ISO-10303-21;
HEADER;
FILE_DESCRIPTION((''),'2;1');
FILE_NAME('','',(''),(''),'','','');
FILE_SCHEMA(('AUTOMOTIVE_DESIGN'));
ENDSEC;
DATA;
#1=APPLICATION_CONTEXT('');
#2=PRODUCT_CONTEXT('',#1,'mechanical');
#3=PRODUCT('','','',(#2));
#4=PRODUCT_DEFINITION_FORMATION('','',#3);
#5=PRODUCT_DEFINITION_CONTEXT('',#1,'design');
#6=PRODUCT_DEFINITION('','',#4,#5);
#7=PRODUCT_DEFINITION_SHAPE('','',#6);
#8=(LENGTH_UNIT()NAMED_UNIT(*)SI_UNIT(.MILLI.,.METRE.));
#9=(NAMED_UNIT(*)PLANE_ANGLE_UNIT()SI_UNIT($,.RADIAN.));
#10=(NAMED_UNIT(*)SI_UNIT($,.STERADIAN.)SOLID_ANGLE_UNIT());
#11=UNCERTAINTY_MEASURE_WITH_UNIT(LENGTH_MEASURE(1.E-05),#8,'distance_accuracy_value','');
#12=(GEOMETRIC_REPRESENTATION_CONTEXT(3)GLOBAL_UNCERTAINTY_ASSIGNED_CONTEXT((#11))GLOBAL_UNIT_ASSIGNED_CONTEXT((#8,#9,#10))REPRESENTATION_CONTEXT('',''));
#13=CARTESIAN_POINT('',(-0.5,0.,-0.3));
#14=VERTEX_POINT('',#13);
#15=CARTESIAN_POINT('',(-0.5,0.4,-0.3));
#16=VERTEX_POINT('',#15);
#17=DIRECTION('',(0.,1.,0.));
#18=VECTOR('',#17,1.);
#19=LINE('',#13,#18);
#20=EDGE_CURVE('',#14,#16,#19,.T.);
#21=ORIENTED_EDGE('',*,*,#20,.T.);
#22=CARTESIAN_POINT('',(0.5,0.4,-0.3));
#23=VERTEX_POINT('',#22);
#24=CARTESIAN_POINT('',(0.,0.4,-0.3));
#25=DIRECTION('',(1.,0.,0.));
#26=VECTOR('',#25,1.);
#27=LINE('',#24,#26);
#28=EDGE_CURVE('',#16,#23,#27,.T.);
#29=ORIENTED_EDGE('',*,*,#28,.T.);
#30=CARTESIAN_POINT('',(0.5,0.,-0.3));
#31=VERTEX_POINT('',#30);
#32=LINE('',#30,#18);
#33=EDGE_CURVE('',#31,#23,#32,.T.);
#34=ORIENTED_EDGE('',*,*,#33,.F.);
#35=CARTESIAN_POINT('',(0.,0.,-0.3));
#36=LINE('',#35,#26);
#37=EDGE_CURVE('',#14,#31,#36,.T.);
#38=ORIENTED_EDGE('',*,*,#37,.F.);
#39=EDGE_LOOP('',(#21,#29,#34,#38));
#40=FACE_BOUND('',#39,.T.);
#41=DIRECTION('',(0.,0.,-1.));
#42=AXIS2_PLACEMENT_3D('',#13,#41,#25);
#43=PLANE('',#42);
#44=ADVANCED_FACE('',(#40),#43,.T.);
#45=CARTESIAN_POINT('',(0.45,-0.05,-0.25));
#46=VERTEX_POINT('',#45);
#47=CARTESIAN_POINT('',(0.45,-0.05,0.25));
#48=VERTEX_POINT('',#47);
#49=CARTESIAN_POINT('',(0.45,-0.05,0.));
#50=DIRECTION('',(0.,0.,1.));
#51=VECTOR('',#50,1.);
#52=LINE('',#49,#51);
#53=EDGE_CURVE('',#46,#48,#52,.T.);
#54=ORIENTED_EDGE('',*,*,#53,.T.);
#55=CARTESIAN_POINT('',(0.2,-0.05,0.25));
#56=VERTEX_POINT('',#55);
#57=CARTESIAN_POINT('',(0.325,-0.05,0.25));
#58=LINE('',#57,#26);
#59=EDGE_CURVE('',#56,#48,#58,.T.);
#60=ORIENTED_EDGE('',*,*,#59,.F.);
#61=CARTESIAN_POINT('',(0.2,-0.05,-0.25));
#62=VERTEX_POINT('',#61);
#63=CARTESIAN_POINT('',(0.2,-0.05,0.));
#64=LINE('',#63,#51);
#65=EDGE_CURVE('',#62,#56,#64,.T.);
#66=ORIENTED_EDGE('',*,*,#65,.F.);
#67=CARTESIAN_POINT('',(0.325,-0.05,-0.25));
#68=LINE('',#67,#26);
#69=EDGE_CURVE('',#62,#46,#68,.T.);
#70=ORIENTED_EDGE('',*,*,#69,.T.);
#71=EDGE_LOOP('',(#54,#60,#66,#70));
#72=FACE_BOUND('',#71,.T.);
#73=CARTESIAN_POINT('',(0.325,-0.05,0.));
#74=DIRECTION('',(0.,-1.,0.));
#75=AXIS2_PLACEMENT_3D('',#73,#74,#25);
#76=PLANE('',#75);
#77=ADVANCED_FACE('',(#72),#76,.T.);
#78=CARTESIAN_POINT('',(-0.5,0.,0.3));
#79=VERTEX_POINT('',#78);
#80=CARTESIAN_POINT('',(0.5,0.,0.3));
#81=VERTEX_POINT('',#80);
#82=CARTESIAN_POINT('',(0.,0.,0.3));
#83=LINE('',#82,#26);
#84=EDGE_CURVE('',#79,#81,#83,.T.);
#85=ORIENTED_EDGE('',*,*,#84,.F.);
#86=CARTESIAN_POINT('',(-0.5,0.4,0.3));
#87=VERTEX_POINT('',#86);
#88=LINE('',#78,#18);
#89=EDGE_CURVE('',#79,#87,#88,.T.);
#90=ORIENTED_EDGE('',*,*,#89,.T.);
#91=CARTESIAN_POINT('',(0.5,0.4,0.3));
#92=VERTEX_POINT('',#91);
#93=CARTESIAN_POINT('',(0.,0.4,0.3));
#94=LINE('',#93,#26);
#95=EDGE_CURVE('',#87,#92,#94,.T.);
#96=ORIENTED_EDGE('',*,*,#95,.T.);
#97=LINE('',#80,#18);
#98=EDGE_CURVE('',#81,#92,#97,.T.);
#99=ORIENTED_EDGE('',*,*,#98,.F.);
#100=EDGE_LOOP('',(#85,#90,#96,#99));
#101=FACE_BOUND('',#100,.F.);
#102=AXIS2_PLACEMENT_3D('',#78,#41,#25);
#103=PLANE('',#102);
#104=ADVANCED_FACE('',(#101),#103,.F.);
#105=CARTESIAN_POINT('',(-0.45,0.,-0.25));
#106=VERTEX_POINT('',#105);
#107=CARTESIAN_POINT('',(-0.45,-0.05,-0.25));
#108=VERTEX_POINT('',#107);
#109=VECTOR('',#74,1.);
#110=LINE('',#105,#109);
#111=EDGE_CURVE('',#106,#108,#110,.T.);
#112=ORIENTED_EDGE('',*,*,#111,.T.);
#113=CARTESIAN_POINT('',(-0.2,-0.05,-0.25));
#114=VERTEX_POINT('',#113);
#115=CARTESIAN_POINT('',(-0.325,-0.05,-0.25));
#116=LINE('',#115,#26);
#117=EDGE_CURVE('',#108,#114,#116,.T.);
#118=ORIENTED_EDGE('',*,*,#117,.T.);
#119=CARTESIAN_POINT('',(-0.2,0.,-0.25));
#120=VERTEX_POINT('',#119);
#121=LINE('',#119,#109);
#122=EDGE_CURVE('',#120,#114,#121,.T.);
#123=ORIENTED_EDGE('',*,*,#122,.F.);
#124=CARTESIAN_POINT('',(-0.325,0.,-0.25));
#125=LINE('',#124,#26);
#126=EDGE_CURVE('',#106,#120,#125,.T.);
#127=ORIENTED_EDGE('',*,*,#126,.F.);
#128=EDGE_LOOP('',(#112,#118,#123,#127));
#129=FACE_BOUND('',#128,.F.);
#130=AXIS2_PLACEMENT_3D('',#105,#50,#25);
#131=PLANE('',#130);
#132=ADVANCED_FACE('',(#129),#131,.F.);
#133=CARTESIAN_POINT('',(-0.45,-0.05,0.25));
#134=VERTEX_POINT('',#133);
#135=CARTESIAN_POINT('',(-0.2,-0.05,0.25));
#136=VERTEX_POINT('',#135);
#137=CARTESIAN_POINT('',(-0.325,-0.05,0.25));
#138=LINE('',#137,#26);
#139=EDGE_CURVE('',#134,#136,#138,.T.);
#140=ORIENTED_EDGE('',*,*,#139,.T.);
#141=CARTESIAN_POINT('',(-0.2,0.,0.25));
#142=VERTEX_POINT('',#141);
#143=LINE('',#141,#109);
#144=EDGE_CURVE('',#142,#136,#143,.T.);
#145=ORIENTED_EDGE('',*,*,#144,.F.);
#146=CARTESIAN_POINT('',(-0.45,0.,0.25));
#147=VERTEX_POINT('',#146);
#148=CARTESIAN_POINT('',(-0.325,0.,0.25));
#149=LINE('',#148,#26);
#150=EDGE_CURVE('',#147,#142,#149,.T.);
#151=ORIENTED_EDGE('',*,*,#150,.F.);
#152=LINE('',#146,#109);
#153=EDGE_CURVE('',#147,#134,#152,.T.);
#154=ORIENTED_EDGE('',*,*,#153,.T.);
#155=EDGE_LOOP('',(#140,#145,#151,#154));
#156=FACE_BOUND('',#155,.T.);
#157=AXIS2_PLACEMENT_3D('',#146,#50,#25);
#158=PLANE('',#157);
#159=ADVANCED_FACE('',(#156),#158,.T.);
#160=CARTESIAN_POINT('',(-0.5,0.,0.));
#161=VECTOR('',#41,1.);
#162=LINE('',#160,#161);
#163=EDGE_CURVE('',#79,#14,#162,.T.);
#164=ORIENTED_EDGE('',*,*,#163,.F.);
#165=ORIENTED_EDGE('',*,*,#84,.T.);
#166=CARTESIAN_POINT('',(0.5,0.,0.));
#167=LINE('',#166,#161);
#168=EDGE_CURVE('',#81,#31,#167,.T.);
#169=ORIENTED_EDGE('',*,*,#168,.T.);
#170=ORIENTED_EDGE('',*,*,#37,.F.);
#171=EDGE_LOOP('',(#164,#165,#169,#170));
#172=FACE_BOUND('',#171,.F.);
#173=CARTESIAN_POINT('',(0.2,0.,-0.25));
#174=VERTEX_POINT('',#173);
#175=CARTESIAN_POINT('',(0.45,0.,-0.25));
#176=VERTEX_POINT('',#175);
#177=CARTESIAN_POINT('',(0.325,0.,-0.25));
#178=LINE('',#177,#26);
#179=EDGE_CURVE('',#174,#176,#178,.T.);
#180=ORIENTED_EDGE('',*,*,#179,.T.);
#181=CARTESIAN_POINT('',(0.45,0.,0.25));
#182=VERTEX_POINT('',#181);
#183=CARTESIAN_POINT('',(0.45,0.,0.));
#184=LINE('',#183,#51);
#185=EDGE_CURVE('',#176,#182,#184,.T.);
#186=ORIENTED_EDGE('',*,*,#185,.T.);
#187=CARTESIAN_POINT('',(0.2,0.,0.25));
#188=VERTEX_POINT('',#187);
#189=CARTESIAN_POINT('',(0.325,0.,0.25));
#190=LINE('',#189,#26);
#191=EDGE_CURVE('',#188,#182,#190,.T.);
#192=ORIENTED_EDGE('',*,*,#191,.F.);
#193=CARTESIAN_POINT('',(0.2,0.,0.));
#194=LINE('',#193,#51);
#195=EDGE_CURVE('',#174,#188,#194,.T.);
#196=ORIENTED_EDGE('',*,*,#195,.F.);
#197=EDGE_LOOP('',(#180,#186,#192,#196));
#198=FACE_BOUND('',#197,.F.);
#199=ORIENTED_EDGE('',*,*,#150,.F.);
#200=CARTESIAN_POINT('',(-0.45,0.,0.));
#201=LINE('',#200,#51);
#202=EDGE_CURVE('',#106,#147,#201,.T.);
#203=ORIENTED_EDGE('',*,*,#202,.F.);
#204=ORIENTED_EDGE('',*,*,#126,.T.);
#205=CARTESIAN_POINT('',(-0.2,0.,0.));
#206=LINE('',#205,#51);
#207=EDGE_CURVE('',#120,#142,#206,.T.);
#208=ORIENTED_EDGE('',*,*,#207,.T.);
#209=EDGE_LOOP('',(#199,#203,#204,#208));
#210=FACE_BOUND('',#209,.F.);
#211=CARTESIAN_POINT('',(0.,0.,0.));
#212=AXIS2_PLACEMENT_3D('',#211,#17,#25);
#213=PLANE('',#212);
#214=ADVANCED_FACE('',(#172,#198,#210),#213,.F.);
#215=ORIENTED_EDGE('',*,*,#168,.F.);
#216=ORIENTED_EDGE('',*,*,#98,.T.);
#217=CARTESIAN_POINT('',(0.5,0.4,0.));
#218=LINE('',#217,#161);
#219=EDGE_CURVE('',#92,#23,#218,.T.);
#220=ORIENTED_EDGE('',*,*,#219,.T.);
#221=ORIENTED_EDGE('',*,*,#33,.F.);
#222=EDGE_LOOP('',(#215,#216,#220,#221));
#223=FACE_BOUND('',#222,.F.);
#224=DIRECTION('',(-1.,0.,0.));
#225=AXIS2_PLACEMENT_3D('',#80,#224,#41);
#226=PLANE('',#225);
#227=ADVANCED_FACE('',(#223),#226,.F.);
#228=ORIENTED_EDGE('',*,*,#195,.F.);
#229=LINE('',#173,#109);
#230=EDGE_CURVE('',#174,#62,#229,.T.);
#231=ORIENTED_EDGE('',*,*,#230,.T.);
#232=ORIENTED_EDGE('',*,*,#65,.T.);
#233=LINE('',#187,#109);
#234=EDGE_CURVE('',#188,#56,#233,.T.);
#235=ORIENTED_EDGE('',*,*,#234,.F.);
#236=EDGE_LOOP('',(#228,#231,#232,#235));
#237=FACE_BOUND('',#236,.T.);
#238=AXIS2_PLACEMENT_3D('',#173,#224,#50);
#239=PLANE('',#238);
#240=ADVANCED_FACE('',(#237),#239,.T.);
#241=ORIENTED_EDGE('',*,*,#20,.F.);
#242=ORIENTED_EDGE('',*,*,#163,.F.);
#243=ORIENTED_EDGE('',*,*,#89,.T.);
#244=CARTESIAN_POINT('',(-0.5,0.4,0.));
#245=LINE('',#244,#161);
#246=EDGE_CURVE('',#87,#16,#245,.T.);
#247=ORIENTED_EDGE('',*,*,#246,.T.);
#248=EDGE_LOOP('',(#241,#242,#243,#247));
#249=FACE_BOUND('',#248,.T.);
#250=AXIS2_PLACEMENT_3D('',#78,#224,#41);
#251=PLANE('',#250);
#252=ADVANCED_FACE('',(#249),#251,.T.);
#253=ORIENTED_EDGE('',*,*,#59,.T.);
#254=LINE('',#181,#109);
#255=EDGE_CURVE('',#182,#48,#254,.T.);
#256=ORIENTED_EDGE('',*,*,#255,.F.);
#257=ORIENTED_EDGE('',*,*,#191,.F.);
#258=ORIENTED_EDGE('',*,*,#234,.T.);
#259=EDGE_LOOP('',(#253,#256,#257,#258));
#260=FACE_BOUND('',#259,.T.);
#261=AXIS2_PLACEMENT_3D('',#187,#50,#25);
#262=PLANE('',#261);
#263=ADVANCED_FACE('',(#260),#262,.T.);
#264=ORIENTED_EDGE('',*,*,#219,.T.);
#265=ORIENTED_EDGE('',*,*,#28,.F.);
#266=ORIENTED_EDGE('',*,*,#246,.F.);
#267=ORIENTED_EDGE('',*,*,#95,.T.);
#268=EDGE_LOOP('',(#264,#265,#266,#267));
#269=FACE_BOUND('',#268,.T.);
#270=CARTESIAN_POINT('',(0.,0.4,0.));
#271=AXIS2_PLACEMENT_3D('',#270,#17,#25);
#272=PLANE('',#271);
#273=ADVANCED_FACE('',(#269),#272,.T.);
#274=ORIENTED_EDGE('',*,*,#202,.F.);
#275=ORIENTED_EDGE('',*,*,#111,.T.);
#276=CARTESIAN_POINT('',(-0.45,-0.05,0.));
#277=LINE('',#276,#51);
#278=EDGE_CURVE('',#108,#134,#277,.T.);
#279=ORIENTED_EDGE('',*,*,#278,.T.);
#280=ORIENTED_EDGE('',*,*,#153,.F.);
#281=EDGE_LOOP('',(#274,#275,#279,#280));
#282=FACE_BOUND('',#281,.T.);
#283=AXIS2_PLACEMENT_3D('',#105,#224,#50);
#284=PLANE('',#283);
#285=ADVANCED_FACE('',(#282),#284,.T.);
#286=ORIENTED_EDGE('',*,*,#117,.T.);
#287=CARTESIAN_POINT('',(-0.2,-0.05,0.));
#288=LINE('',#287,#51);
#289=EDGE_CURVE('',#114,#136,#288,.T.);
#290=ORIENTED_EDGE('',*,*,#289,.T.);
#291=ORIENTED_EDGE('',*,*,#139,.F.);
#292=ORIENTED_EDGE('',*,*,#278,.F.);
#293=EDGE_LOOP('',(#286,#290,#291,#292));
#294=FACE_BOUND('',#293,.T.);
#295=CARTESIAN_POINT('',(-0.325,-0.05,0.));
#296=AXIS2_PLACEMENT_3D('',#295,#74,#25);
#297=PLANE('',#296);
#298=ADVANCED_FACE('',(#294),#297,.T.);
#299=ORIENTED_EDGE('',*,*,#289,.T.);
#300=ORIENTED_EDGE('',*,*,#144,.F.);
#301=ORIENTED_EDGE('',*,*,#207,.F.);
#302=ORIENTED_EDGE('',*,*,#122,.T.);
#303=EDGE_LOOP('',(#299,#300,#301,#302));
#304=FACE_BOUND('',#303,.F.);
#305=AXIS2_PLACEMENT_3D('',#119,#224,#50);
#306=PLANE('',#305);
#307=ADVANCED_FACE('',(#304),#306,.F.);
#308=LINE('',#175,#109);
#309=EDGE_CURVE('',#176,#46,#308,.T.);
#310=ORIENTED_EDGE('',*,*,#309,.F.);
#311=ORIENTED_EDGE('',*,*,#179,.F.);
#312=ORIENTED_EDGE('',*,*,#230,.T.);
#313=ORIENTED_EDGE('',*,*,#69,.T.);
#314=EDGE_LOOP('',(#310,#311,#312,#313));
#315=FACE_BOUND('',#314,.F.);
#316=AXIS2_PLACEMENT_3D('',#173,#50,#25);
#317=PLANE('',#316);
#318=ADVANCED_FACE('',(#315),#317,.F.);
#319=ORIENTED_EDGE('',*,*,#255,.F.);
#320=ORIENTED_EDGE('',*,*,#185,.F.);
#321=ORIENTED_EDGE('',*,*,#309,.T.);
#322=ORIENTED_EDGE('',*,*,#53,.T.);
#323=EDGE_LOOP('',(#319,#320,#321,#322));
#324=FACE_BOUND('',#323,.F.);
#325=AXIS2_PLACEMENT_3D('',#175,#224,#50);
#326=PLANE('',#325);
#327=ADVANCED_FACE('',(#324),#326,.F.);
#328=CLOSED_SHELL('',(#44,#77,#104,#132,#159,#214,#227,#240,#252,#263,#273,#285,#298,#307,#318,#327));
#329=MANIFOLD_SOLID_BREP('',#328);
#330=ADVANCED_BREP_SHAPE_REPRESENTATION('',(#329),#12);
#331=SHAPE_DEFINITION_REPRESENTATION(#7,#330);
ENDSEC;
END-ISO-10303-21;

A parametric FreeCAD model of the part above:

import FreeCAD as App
import Part
import Sketcher


def add_polygon(sketch, points):
    """Adds a closed chain of lines whose ends are joined by coincident constraints."""
    first, n = sketch.GeometryCount, len(points)
    for a, b in zip(points, points[1:] + points[:1]):
        sketch.addGeometry(Part.LineSegment(App.Vector(*a, 0), App.Vector(*b, 0)), False)
    for i in range(n):
        sketch.addConstraint(Sketcher.Constraint("Coincident", first + i, 2, first + (i + 1) % n, 1))

doc = App.newDocument("Part")
params = doc.addObject("Spreadsheet::Sheet", "Params")
for row, (alias, value) in enumerate([
    ("sketch1_width", "1 mm"),
    ("sketch1_height", "0.6 mm"),
    ("pad1_length", "0.4 mm"),
    ("sketch2_height", "0.5 mm"),
    ("sketch2_width", "0.25 mm"),
    ("pad2_length", "0.05 mm"),
], start=1):
    params.set(f"A{row}", alias)
    params.set(f"B{row}", "=" + value)
    params.setAlias(f"B{row}", alias)

body = doc.addObject("PartDesign::Body", "Body")

# Sketch on XZ plane
sketch1 = body.newObject("Sketcher::SketchObject", "Sketch")
sketch1.AttachmentSupport = (doc.getObject("XZ_Plane"), [""])
sketch1.MapMode = "FlatFace"
add_polygon(sketch1, [(-0.5, -0.3), (-0.5, 0.3), (0.5, 0.3), (0.5, -0.3)])  # lines 0-3
sketch1.addConstraint([
    Sketcher.Constraint("Vertical", 0),
    Sketcher.Constraint("Horizontal", 1),
    Sketcher.Constraint("Vertical", 2),
    Sketcher.Constraint("Horizontal", 3),
    Sketcher.Constraint("Symmetric", 0, 2, 2, 2, -1, 1),
    Sketcher.Constraint("DistanceX", 1, 1, 1, 2, 1.0),
    Sketcher.Constraint("DistanceY", 0, 1, 0, 2, 0.6),
])
sketch1.setExpression("Constraints[9]", "Params.sketch1_width")
sketch1.setExpression("Constraints[10]", "Params.sketch1_height")
pad1 = body.newObject("PartDesign::Pad", "Pad")
pad1.Profile = sketch1
pad1.setExpression("Length", "Params.pad1_length")
pad1.Reversed = True

# Sketch on XZ plane
sketch2 = body.newObject("Sketcher::SketchObject", "Sketch001")
sketch2.AttachmentSupport = (doc.getObject("XZ_Plane"), [""])
sketch2.MapMode = "FlatFace"
add_polygon(sketch2, [(-0.45, 0.25), (-0.45, -0.25), (-0.2, -0.25), (-0.2, 0.25)])  # lines 0-3
add_polygon(sketch2, [(0.2, 0.25), (0.2, -0.25), (0.45, -0.25), (0.45, 0.25)])  # lines 4-7
sketch2.addConstraint([
    Sketcher.Constraint("Vertical", 0),
    Sketcher.Constraint("Horizontal", 1),
    Sketcher.Constraint("Vertical", 2),
    Sketcher.Constraint("Horizontal", 3),
    Sketcher.Constraint("Vertical", 4),
    Sketcher.Constraint("Horizontal", 5),
    Sketcher.Constraint("Vertical", 6),
    Sketcher.Constraint("Horizontal", 7),
    Sketcher.Constraint("Symmetric", 2, 2, 4, 2, -1, 1),
    Sketcher.Constraint("Symmetric", 0, 2, 6, 2, -1, 1),
    Sketcher.Constraint("Horizontal", 1, 2, 4, 2),
    Sketcher.Constraint("DistanceY", 0, 2, 0, 1, 0.5),
    Sketcher.Constraint("DistanceX", 1, 1, 1, 2, 0.25),
    Sketcher.Constraint("DistanceX", 1, 2, -1, 1, 0.2),
])
sketch2.setExpression("Constraints[19]", "Params.sketch2_height")
sketch2.setExpression("Constraints[20]", "Params.sketch2_width")
pad2 = body.newObject("PartDesign::Pad", "Pad001")
pad2.Profile = sketch2
pad2.setExpression("Length", "Params.pad2_length")

doc.recompute()
